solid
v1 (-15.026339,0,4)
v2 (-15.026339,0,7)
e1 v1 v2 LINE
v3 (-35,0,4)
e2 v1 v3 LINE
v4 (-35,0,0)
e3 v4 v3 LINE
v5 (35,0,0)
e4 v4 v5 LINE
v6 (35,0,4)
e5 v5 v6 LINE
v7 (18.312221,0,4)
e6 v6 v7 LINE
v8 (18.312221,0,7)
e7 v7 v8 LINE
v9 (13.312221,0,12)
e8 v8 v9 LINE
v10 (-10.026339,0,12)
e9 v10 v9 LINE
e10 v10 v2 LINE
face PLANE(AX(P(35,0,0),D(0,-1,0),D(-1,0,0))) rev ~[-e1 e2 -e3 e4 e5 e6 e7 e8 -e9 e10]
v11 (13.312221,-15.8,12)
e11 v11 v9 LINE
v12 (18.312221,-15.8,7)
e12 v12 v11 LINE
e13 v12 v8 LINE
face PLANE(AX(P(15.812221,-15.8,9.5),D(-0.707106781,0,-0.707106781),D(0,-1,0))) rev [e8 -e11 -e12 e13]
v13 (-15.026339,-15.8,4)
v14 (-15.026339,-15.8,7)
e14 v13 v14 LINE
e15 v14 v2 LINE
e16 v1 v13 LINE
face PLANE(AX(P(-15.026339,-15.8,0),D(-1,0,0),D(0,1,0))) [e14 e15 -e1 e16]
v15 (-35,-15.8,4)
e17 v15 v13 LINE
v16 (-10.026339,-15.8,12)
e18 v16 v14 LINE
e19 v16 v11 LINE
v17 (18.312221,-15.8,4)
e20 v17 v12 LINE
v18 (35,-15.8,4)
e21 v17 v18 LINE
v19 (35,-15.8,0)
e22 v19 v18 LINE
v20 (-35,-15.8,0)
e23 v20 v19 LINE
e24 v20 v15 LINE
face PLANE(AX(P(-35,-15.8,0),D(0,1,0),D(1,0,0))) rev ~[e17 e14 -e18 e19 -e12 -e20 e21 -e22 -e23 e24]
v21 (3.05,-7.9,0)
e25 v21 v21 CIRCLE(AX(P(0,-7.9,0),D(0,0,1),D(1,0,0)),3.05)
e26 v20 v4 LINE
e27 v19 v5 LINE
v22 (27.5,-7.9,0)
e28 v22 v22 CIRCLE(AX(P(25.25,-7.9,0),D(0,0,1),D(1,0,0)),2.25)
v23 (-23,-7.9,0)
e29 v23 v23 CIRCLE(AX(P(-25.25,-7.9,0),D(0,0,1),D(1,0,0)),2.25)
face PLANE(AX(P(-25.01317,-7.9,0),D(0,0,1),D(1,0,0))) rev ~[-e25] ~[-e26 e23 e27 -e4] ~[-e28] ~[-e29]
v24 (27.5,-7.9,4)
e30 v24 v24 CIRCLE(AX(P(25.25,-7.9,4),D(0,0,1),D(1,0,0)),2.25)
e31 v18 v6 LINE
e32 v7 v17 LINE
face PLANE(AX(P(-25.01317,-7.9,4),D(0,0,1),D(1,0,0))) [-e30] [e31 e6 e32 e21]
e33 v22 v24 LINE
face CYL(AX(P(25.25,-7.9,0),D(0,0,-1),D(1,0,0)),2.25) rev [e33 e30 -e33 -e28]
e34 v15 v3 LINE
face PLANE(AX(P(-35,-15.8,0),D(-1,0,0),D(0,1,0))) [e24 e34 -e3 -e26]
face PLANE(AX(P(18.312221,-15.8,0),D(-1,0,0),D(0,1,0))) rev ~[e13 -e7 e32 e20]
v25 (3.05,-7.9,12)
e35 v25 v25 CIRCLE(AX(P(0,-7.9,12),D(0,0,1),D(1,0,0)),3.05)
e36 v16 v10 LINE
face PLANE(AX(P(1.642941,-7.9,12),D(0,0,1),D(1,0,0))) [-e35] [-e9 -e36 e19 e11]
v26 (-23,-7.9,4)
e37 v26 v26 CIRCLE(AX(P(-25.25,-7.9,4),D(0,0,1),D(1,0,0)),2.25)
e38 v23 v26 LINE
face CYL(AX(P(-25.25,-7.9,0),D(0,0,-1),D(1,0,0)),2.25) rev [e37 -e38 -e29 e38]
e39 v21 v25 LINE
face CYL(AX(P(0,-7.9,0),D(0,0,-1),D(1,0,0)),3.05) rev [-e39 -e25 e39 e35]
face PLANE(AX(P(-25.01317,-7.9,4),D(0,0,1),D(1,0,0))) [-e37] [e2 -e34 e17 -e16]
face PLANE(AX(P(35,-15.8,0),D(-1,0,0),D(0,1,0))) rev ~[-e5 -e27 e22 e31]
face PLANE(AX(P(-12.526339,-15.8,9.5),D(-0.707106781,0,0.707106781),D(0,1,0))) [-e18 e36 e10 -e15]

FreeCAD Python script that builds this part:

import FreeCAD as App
import Part
import Sketcher
from FreeCAD import Vector
Q = App.Units.Quantity


def edges_at(feature, points):
    """Names of the edges that pass closest to the given points."""
    edges = feature.Shape.Edges
    near = lambda p: min(range(len(edges)), key=lambda i: edges[i].distToShape(Part.Vertex(*p))[0])
    return sorted({f"Edge{near(p) + 1}" for p in points})


def add_polygon(sketch, points):
    """Adds a closed chain of lines whose ends are joined by coincident constraints."""
    first, n = sketch.GeometryCount, len(points)
    for a, b in zip(points, points[1:] + points[:1]):
        sketch.addGeometry(Part.LineSegment(App.Vector(*a, 0), App.Vector(*b, 0)), False)
    for i in range(n):
        sketch.addConstraint(Sketcher.Constraint("Coincident", first + i, 2, first + (i + 1) % n, 1))

doc = App.newDocument("Part")
body = doc.addObject("PartDesign::Body", "Body")

# Sketch on XY plane
sketch1 = body.newObject("Sketcher::SketchObject", "Sketch")
sketch1.AttachmentSupport = (doc.getObject("XY_Plane"), [""])
sketch1.MapMode = "FlatFace"
add_polygon(sketch1, [(-35, 0), (-35, -15.8), (35, -15.8), (35, 0)])  # lines 0-3
sketch1.addGeometry(Part.Circle(Vector(-25.2, -7.9, 0), Vector(0, 0, 1), 2.2), False)  # 4
sketch1.addGeometry(Part.Circle(Vector(0, -7.9, 0), Vector(0, 0, 1), 3), False)  # 5
sketch1.addGeometry(Part.Circle(Vector(25.2, -7.9, 0), Vector(0, 0, 1), 2.2), False)  # 6
sketch1.addConstraint([
    Sketcher.Constraint("Vertical", 0),
    Sketcher.Constraint("Horizontal", 1),
    Sketcher.Constraint("Vertical", 2),
    Sketcher.Constraint("Horizontal", 3),
    Sketcher.Constraint("Equal", 4, 6),
    Sketcher.Constraint("Symmetric", 2, 2, 3, 2, -1, 1),
    Sketcher.Constraint("Symmetric", 4, 3, 6, 3, -2),
    Sketcher.Constraint("PointOnObject", 5, 3, -2),
    Sketcher.Constraint("Horizontal", 4, 3, 5, 3),
    Sketcher.Constraint("Diameter", 4, Q("4.5 mm")),
    Sketcher.Constraint("Diameter", 5, Q("6.1 mm")),
    Sketcher.Constraint("DistanceX", 1, 1, 1, 2, Q("70 mm")),
    Sketcher.Constraint("DistanceY", 0, 2, 0, 1, Q("15.8 mm")),
    Sketcher.Constraint("DistanceY", 4, 3, -1, 1, Q("7.9 mm")),
    Sketcher.Constraint("DistanceX", 4, 3, 6, 3, Q("50.5 mm")),
])
pad1 = body.newObject("PartDesign::Pad", "Pad")
pad1.Profile = sketch1
pad1.Length = 4

# Sketch on XY plane
sketch2 = body.newObject("Sketcher::SketchObject", "Sketch001")
sketch2.AttachmentSupport = (doc.getObject("XY_Plane"), [""])
sketch2.MapMode = "FlatFace"
add_polygon(sketch2, [(-15, 0), (-15, -15.8), (18.3, -15.8), (18.3, 0)])  # lines 0-3
sketch2.addGeometry(Part.Circle(Vector(0, -7.9, 0), Vector(0, 0, 1), 3), False)  # 4
sketch2.addConstraint([
    Sketcher.Constraint("Vertical", 0),
    Sketcher.Constraint("Horizontal", 1),
    Sketcher.Constraint("Vertical", 2),
    Sketcher.Constraint("Horizontal", 3),
    Sketcher.Constraint("PointOnObject", 4, 3, -2),
    Sketcher.Constraint("PointOnObject", 2, 2, -1),
    Sketcher.Constraint("Diameter", 4, Q("6.1 mm")),
    Sketcher.Constraint("DistanceY", 0, 2, 0, 1, Q("15.8 mm")),
    Sketcher.Constraint("DistanceY", 4, 3, -1, 1, Q("7.9 mm")),
    Sketcher.Constraint("DistanceX", 1, 1, 1, 2, Q("33.338561 mm")),
    Sketcher.Constraint("DistanceX", 0, 2, -1, 1, Q("15.026339 mm")),
])
pad2 = body.newObject("PartDesign::Pad", "Pad001")
pad2.Profile = sketch2
pad2.Length = 12
doc.recompute()

chamfer = body.newObject("PartDesign::Chamfer", "Chamfer")
chamfer.Base = (pad2, edges_at(pad2, [(-15.026, -7.9, 12), (18.312, -7.9, 12)]))
chamfer.Size = 5

doc.recompute()
